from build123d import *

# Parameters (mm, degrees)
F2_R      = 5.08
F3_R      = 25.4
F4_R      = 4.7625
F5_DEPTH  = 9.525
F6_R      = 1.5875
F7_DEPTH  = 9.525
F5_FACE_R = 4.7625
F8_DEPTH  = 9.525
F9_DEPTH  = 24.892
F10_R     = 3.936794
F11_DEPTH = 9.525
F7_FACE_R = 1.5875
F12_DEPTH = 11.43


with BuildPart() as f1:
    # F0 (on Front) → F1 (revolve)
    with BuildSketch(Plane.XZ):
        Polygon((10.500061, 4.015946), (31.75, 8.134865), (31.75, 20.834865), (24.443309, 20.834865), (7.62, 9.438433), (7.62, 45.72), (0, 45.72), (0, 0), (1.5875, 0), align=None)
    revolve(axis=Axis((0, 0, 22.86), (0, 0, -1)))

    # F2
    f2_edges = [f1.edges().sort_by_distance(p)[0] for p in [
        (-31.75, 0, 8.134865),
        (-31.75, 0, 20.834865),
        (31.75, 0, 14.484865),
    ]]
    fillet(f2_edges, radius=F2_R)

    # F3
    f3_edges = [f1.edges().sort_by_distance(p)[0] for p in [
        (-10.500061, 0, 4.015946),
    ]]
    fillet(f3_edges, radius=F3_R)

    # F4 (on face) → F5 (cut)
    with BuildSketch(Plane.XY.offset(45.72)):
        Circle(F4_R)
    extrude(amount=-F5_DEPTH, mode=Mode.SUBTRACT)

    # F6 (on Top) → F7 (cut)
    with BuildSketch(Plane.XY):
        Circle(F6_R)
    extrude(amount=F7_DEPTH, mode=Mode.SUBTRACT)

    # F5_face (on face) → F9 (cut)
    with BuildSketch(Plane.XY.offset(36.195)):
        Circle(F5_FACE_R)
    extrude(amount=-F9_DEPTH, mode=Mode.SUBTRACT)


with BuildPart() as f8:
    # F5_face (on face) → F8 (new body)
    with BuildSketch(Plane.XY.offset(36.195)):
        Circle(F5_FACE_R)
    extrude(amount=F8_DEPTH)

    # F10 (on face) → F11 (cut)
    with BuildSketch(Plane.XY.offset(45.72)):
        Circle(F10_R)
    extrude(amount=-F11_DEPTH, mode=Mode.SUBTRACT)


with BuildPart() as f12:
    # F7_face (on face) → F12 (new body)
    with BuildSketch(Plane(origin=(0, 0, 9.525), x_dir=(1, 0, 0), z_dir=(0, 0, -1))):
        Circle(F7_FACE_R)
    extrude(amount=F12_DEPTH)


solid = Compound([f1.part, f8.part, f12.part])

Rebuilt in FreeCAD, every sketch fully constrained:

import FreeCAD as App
import Part
import Sketcher

V = App.Vector
Q = App.Units.Quantity


def edges_at(feature, points):
    """Names of the edges that pass closest to the given points."""
    edges = feature.Shape.Edges
    near = lambda p: min(range(len(edges)), key=lambda i: edges[i].distToShape(Part.Vertex(*p))[0])
    return sorted({f"Edge{near(p) + 1}" for p in points})


def add_polygon(sketch, points):
    """Adds a closed chain of lines whose ends are joined by coincident constraints."""
    first, n = sketch.GeometryCount, len(points)
    for a, b in zip(points, points[1:] + points[:1]):
        sketch.addGeometry(Part.LineSegment(App.Vector(*a, 0), App.Vector(*b, 0)), False)
    for i in range(n):
        sketch.addConstraint(Sketcher.Constraint("Coincident", first + i, 2, first + (i + 1) % n, 1))

doc = App.newDocument("Part")
body = doc.addObject("PartDesign::Body", "Body")

sketch1 = body.newObject("Sketcher::SketchObject", "Sketch")
sketch1.AttachmentSupport = (doc.getObject("XZ_Plane"), [""])
sketch1.MapMode = "FlatFace"
add_polygon(sketch1, [(10.5, 4), (31.8, 8.1), (31.8, 20.8), (24.4, 20.8), (7.6, 9.4), (7.6, 45.7), (0, 45.7), (0, 0), (1.6, 0)])
sketch1.addConstraint(Sketcher.Constraint("Vertical", 1))
sketch1.addConstraint(Sketcher.Constraint("Horizontal", 2))
sketch1.addConstraint(Sketcher.Constraint("Vertical", 4))
sketch1.addConstraint(Sketcher.Constraint("Horizontal", 5))
sketch1.addConstraint(Sketcher.Constraint("Vertical", 6))
sketch1.addConstraint(Sketcher.Constraint("Horizontal", 7))
sketch1.addConstraint(Sketcher.Constraint("Coincident", 6, 2, -1, 1))
sketch1.addConstraint(Sketcher.Constraint("DistanceX", 5, 2, 5, 1, Q("0.3 in")))
sketch1.addConstraint(Sketcher.Constraint("DistanceY", 1, 1, 1, 2, Q("0.5 in")))
sketch1.addConstraint(Sketcher.Constraint("DistanceY", 6, 2, 6, 1, Q("1.8 in")))
sketch1.addConstraint(Sketcher.Constraint("Distance", 3, Q("0.8 in")))
sketch1.addConstraint(Sketcher.Constraint("DistanceX", 7, 1, 7, 2, Q("0.0625 in")))
sketch1.addConstraint(Sketcher.Constraint("DistanceX", -1, 1, 0, 2, Q("1.25 in")))
sketch1.addConstraint(Sketcher.Constraint("DistanceX", 2, 2, 2, 1, 7.306691))
sketch1.addConstraint(Sketcher.Constraint("Distance", 8, 9.77556))
sketch1.addConstraint(Sketcher.Constraint("DistanceY", 4, 1, 4, 2, 36.281567))
sketch1.addConstraint(Sketcher.Constraint("DistanceX", -1, 1, 8, 2, 10.500061))
revolution = body.newObject("PartDesign::Revolution", "Revolution")
revolution.Profile = sketch1
revolution.ReferenceAxis = (sketch1, ["V_Axis"])
revolution.Angle = 360
doc.recompute()

fillet = body.newObject("PartDesign::Fillet", "Fillet")
fillet.Base = (revolution, edges_at(revolution, [(-31.75, 0, 8.135), (-31.75, 0, 20.835), (31.75, 0, 14.485)]))
fillet.Radius = Q("0.2 in")
doc.recompute()

fillet2 = body.newObject("PartDesign::Fillet", "Fillet001")
fillet2.Base = (fillet, edges_at(fillet, [(-10.5, 0, 4.016)]))
fillet2.Radius = Q("1 in")

sketch2 = body.newObject("Sketcher::SketchObject", "Sketch001")
sketch2.AttachmentSupport = (doc.getObject("XY_Plane"), [""])
sketch2.MapMode = "FlatFace"
sketch2.AttachmentOffset = App.Placement(V(0, 0, 1.8 * 25.4), App.Rotation())
sketch2.addGeometry(Part.Circle(V(0, 0, 0), V(0, 0, 1), 4.8), False)
sketch2.addConstraint(Sketcher.Constraint("Coincident", 0, 3, -1, 1))
sketch2.addConstraint(Sketcher.Constraint("Diameter", 0, Q("0.375 in")))
pocket1 = body.newObject("PartDesign::Pocket", "Pocket")
pocket1.Profile = sketch2
pocket1.Length = Q("0.375 in")

sketch3 = body.newObject("Sketcher::SketchObject", "Sketch002")
sketch3.AttachmentSupport = (doc.getObject("XY_Plane"), [""])
sketch3.MapMode = "FlatFace"
sketch3.addGeometry(Part.Circle(V(0, 0, 0), V(0, 0, 1), 1.6), False)
sketch3.addConstraint(Sketcher.Constraint("Coincident", 0, 3, -1, 1))
sketch3.addConstraint(Sketcher.Constraint("Diameter", 0, Q("0.125 in")))
pocket2 = body.newObject("PartDesign::Pocket", "Pocket001")
pocket2.Profile = sketch3
pocket2.Length = Q("0.375 in")
pocket2.Reversed = True

sketch4 = body.newObject("Sketcher::SketchObject", "Sketch003")
sketch4.AttachmentSupport = (doc.getObject("XY_Plane"), [""])
sketch4.MapMode = "FlatFace"
sketch4.AttachmentOffset = App.Placement(V(0, 0, 1.425 * 25.4), App.Rotation())
sketch4.addGeometry(Part.Circle(V(0, 0, 0), V(0, 0, 1), 4.8), False)
sketch4.addConstraint(Sketcher.Constraint("Coincident", 0, 3, -1, 1))
sketch4.addConstraint(Sketcher.Constraint("Diameter", 0, Q("0.375 in")))
pocket3 = body.newObject("PartDesign::Pocket", "Pocket002")
pocket3.Profile = sketch4
pocket3.Length = Q("0.98 in")
body2 = doc.addObject("PartDesign::Body", "Body001")

sketch5 = body2.newObject("Sketcher::SketchObject", "Sketch004")
sketch5.AttachmentSupport = (doc.getObject("XY_Plane001"), [""])
sketch5.MapMode = "FlatFace"
sketch5.AttachmentOffset = App.Placement(V(0, 0, 1.425 * 25.4), App.Rotation())
sketch5.addGeometry(Part.Circle(V(0, 0, 0), V(0, 0, 1), 4.8), False)
sketch5.addConstraint(Sketcher.Constraint("Coincident", 0, 3, -1, 1))
sketch5.addConstraint(Sketcher.Constraint("Diameter", 0, Q("0.375 in")))
pad1 = body2.newObject("PartDesign::Pad", "Pad")
pad1.Profile = sketch5
pad1.Length = Q("0.375 in")

sketch6 = body2.newObject("Sketcher::SketchObject", "Sketch005")
sketch6.AttachmentSupport = (doc.getObject("XY_Plane001"), [""])
sketch6.MapMode = "FlatFace"
sketch6.AttachmentOffset = App.Placement(V(0, 0, 1.8 * 25.4), App.Rotation())
sketch6.addGeometry(Part.Circle(V(0, 0, 0), V(0, 0, 1), 3.9), False)
sketch6.addConstraint(Sketcher.Constraint("Coincident", 0, 3, -1, 1))
sketch6.addConstraint(Sketcher.Constraint("Diameter", 0, 7.873588))
pocket4 = body2.newObject("PartDesign::Pocket", "Pocket003")
pocket4.Profile = sketch6
pocket4.Length = Q("0.375 in")
body3 = doc.addObject("PartDesign::Body", "Body002")

sketch7 = body3.newObject("Sketcher::SketchObject", "Sketch006")
sketch7.AttachmentSupport = (doc.getObject("XY_Plane002"), [""])
sketch7.MapMode = "FlatFace"
sketch7.AttachmentOffset = App.Placement(V(0, 0, 0.375 * 25.4), App.Rotation())
sketch7.addGeometry(Part.Circle(V(0, 0, 0), V(0, 0, 1), 1.6), False)
sketch7.addConstraint(Sketcher.Constraint("Coincident", 0, 3, -1, 1))
sketch7.addConstraint(Sketcher.Constraint("Diameter", 0, Q("0.125 in")))
pad2 = body3.newObject("PartDesign::Pad", "Pad001")
pad2.Profile = sketch7
pad2.Length = Q("0.45 in")
pad2.Reversed = True

doc.recompute()
